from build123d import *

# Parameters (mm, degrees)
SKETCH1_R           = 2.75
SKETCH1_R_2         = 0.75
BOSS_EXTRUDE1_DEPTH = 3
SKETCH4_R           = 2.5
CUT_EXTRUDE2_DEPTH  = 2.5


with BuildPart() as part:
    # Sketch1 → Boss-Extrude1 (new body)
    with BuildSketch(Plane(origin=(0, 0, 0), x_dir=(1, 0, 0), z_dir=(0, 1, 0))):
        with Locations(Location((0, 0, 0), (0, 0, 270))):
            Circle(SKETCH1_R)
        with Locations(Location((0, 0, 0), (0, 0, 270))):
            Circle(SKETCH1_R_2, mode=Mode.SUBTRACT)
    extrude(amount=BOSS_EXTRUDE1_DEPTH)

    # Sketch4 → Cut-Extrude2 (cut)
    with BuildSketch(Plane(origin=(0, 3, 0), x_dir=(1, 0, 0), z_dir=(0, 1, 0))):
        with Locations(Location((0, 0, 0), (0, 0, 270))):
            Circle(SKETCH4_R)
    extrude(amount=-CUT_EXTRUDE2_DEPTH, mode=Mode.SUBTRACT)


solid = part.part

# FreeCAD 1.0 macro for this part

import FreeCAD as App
import Part
import Sketcher
from FreeCAD import Vector
Q = App.Units.Quantity

doc = App.newDocument("Part")
body = doc.addObject("PartDesign::Body", "Body")

sketch1 = doc.addObject("Sketcher::SketchObject", "Sketch")
body.addObject(sketch1)
sketch1.AttachmentSupport = (doc.XZ_Plane, [""])
sketch1.MapMode = "FlatFace"
sketch1.addGeometry(Part.Circle(Vector(0, 0, 0), Vector(0, 0, 1), 2.75), False)
sketch1.addGeometry(Part.Circle(Vector(0, 0, 0), Vector(0, 0, 1), 0.75), False)
sketch1.addConstraint(Sketcher.Constraint("Coincident", 0, 3, -1, 1))
sketch1.addConstraint(Sketcher.Constraint("Coincident", 1, 3, -1, 1))
sketch1.addConstraint(Sketcher.Constraint("Diameter", 0, Q("5.5 mm")))
sketch1.addConstraint(Sketcher.Constraint("Diameter", 1, Q("1.5 mm")))
pad1 = doc.addObject("PartDesign::Pad", "Pad")
body.addObject(pad1)
pad1.Profile = sketch1
pad1.Length = 3
pad1.Reversed = True

sketch2 = doc.addObject("Sketcher::SketchObject", "Sketch001")
body.addObject(sketch2)
sketch2.AttachmentSupport = (doc.XZ_Plane, [""])
sketch2.MapMode = "FlatFace"
sketch2.AttachmentOffset = App.Placement(Vector(0, 0, -3), App.Rotation())
sketch2.addGeometry(Part.Circle(Vector(0, 0, 0), Vector(0, 0, 1), 2.5), False)
sketch2.addConstraint(Sketcher.Constraint("Coincident", 0, 3, -1, 1))
sketch2.addConstraint(Sketcher.Constraint("Diameter", 0, Q("5 mm")))
pocket1 = doc.addObject("PartDesign::Pocket", "Pocket")
body.addObject(pocket1)
pocket1.Profile = sketch2
pocket1.Length = 2.5
pocket1.Reversed = True

doc.recompute()
